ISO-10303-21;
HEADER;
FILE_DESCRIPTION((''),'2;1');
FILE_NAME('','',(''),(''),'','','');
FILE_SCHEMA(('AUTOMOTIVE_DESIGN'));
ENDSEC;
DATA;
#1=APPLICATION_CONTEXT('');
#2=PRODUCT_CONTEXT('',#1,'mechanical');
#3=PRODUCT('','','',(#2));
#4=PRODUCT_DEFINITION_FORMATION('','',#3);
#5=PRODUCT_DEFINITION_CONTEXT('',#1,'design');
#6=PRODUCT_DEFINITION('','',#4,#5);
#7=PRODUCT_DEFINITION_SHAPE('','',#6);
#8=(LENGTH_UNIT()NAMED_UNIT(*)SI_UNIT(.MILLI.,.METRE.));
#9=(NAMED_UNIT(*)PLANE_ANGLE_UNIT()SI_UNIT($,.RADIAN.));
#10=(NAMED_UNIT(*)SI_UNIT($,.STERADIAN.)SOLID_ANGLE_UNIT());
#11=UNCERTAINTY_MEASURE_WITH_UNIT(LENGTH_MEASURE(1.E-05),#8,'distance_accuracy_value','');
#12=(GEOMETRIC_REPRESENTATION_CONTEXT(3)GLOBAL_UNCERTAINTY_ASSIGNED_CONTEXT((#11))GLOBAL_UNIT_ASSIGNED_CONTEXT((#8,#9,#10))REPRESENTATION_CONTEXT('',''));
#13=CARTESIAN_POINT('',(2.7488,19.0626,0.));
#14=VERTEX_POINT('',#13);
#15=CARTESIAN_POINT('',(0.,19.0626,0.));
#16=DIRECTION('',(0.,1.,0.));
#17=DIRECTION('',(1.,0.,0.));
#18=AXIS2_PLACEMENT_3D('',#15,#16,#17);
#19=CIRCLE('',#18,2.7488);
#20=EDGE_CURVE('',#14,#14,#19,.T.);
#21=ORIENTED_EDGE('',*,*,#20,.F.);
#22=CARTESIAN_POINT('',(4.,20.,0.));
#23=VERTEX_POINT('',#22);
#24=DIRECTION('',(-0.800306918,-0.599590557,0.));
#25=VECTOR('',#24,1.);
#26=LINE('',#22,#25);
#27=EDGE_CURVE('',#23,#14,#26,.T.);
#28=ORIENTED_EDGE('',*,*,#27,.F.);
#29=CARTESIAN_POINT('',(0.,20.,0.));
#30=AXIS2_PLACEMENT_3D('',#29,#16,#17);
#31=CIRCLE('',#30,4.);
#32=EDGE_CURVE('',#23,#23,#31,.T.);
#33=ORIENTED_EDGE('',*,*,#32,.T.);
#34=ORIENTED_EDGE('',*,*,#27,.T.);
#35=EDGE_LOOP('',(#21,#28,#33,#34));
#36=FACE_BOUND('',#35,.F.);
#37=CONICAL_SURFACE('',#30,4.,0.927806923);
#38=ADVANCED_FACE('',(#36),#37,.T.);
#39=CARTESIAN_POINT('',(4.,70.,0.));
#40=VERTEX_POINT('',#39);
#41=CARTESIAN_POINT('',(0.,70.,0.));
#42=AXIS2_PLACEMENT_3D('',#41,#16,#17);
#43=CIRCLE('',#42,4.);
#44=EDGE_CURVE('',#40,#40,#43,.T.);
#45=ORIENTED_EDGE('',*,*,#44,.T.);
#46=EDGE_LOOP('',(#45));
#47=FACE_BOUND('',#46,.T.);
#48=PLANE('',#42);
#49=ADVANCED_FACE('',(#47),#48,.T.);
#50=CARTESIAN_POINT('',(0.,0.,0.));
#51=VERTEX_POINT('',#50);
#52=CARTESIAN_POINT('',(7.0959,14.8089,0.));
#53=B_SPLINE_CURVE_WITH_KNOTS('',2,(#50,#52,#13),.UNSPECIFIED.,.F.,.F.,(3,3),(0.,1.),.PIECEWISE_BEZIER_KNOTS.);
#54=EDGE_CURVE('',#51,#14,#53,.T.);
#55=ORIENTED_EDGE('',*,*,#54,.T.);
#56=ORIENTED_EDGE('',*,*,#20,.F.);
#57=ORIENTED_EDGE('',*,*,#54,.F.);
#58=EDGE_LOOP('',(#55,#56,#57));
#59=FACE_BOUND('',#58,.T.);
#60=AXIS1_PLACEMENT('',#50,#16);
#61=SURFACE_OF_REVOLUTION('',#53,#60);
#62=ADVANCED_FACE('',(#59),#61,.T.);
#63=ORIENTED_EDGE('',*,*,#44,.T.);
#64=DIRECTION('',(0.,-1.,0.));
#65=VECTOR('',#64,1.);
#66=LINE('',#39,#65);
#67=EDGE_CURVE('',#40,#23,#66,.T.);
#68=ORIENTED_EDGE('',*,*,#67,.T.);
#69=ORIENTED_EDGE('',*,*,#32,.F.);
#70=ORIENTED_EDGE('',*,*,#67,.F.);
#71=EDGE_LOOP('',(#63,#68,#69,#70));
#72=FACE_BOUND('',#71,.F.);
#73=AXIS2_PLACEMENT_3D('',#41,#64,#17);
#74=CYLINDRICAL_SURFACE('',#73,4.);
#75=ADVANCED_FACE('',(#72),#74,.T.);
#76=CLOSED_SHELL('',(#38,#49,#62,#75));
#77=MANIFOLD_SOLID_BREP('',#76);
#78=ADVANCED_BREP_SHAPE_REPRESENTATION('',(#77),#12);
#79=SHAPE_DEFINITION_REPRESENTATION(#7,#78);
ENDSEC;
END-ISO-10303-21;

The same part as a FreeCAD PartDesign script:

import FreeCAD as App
import Part
import Sketcher

V = App.Vector
Q = App.Units.Quantity

doc = App.newDocument("Part")
params = doc.addObject("Spreadsheet::Sheet", "Params")
for row, (alias, value) in enumerate([
    ("sketch1_height", "50 mm"),
    ("sketch1_width", "4 mm"),
    ("revolution_angle", "360 deg"),
], start=1):
    params.set(f"A{row}", alias)
    params.set(f"B{row}", "=" + value)
    params.setAlias(f"B{row}", alias)

body = doc.addObject("PartDesign::Body", "Body")

# Sketch on XY plane
sketch1 = body.newObject("Sketcher::SketchObject", "Sketch")
sketch1.AttachmentSupport = (doc.getObject("XY_Plane"), [""])
sketch1.MapMode = "FlatFace"
sketch1.addGeometry([
    Part.LineSegment(V(0, 70, 0), V(0, 0, 0)),  # 0
    Part.BSplineCurve([V(0, 0, 0), V(7.0959, 14.8089, 0), V(2.7488, 19.0626, 0)], [3, 3], [0, 1], False, 2, [1, 1, 1], False),  # 1
    Part.LineSegment(V(2.7488, 19.0626, 0), V(4, 20, 0)),  # 2
    Part.LineSegment(V(4, 20, 0), V(4, 70, 0)),  # 3
    Part.LineSegment(V(4, 70, 0), V(0, 70, 0)),  # 4
], False)
sketch1.addConstraint([
    Sketcher.Constraint("Block", 1),
    Sketcher.Constraint("Coincident", 0, 2, 1, 1),
    Sketcher.Constraint("Coincident", 1, 2, 2, 1),
    Sketcher.Constraint("Coincident", 2, 2, 3, 1),
    Sketcher.Constraint("Coincident", 3, 2, 4, 1),
    Sketcher.Constraint("Coincident", 4, 2, 0, 1),
    Sketcher.Constraint("Vertical", 0),
    Sketcher.Constraint("Vertical", 3),
    Sketcher.Constraint("Horizontal", 4),
    Sketcher.Constraint("DistanceY", 3, 1, 3, 2, Q("50 mm")),
    Sketcher.Constraint("DistanceY", -1, 1, 2, 2, Q("20 mm")),
    Sketcher.Constraint("DistanceX", 4, 2, 4, 1, Q("4 mm")),
])
sketch1.setExpression("Constraints[9]", "Params.sketch1_height")
sketch1.setExpression("Constraints[11]", "Params.sketch1_width")
revolution = body.newObject("PartDesign::Revolution", "Revolution")
revolution.Profile = sketch1
revolution.ReferenceAxis = (sketch1, ["V_Axis"])
revolution.setExpression("Angle", "Params.revolution_angle")

doc.recompute()
